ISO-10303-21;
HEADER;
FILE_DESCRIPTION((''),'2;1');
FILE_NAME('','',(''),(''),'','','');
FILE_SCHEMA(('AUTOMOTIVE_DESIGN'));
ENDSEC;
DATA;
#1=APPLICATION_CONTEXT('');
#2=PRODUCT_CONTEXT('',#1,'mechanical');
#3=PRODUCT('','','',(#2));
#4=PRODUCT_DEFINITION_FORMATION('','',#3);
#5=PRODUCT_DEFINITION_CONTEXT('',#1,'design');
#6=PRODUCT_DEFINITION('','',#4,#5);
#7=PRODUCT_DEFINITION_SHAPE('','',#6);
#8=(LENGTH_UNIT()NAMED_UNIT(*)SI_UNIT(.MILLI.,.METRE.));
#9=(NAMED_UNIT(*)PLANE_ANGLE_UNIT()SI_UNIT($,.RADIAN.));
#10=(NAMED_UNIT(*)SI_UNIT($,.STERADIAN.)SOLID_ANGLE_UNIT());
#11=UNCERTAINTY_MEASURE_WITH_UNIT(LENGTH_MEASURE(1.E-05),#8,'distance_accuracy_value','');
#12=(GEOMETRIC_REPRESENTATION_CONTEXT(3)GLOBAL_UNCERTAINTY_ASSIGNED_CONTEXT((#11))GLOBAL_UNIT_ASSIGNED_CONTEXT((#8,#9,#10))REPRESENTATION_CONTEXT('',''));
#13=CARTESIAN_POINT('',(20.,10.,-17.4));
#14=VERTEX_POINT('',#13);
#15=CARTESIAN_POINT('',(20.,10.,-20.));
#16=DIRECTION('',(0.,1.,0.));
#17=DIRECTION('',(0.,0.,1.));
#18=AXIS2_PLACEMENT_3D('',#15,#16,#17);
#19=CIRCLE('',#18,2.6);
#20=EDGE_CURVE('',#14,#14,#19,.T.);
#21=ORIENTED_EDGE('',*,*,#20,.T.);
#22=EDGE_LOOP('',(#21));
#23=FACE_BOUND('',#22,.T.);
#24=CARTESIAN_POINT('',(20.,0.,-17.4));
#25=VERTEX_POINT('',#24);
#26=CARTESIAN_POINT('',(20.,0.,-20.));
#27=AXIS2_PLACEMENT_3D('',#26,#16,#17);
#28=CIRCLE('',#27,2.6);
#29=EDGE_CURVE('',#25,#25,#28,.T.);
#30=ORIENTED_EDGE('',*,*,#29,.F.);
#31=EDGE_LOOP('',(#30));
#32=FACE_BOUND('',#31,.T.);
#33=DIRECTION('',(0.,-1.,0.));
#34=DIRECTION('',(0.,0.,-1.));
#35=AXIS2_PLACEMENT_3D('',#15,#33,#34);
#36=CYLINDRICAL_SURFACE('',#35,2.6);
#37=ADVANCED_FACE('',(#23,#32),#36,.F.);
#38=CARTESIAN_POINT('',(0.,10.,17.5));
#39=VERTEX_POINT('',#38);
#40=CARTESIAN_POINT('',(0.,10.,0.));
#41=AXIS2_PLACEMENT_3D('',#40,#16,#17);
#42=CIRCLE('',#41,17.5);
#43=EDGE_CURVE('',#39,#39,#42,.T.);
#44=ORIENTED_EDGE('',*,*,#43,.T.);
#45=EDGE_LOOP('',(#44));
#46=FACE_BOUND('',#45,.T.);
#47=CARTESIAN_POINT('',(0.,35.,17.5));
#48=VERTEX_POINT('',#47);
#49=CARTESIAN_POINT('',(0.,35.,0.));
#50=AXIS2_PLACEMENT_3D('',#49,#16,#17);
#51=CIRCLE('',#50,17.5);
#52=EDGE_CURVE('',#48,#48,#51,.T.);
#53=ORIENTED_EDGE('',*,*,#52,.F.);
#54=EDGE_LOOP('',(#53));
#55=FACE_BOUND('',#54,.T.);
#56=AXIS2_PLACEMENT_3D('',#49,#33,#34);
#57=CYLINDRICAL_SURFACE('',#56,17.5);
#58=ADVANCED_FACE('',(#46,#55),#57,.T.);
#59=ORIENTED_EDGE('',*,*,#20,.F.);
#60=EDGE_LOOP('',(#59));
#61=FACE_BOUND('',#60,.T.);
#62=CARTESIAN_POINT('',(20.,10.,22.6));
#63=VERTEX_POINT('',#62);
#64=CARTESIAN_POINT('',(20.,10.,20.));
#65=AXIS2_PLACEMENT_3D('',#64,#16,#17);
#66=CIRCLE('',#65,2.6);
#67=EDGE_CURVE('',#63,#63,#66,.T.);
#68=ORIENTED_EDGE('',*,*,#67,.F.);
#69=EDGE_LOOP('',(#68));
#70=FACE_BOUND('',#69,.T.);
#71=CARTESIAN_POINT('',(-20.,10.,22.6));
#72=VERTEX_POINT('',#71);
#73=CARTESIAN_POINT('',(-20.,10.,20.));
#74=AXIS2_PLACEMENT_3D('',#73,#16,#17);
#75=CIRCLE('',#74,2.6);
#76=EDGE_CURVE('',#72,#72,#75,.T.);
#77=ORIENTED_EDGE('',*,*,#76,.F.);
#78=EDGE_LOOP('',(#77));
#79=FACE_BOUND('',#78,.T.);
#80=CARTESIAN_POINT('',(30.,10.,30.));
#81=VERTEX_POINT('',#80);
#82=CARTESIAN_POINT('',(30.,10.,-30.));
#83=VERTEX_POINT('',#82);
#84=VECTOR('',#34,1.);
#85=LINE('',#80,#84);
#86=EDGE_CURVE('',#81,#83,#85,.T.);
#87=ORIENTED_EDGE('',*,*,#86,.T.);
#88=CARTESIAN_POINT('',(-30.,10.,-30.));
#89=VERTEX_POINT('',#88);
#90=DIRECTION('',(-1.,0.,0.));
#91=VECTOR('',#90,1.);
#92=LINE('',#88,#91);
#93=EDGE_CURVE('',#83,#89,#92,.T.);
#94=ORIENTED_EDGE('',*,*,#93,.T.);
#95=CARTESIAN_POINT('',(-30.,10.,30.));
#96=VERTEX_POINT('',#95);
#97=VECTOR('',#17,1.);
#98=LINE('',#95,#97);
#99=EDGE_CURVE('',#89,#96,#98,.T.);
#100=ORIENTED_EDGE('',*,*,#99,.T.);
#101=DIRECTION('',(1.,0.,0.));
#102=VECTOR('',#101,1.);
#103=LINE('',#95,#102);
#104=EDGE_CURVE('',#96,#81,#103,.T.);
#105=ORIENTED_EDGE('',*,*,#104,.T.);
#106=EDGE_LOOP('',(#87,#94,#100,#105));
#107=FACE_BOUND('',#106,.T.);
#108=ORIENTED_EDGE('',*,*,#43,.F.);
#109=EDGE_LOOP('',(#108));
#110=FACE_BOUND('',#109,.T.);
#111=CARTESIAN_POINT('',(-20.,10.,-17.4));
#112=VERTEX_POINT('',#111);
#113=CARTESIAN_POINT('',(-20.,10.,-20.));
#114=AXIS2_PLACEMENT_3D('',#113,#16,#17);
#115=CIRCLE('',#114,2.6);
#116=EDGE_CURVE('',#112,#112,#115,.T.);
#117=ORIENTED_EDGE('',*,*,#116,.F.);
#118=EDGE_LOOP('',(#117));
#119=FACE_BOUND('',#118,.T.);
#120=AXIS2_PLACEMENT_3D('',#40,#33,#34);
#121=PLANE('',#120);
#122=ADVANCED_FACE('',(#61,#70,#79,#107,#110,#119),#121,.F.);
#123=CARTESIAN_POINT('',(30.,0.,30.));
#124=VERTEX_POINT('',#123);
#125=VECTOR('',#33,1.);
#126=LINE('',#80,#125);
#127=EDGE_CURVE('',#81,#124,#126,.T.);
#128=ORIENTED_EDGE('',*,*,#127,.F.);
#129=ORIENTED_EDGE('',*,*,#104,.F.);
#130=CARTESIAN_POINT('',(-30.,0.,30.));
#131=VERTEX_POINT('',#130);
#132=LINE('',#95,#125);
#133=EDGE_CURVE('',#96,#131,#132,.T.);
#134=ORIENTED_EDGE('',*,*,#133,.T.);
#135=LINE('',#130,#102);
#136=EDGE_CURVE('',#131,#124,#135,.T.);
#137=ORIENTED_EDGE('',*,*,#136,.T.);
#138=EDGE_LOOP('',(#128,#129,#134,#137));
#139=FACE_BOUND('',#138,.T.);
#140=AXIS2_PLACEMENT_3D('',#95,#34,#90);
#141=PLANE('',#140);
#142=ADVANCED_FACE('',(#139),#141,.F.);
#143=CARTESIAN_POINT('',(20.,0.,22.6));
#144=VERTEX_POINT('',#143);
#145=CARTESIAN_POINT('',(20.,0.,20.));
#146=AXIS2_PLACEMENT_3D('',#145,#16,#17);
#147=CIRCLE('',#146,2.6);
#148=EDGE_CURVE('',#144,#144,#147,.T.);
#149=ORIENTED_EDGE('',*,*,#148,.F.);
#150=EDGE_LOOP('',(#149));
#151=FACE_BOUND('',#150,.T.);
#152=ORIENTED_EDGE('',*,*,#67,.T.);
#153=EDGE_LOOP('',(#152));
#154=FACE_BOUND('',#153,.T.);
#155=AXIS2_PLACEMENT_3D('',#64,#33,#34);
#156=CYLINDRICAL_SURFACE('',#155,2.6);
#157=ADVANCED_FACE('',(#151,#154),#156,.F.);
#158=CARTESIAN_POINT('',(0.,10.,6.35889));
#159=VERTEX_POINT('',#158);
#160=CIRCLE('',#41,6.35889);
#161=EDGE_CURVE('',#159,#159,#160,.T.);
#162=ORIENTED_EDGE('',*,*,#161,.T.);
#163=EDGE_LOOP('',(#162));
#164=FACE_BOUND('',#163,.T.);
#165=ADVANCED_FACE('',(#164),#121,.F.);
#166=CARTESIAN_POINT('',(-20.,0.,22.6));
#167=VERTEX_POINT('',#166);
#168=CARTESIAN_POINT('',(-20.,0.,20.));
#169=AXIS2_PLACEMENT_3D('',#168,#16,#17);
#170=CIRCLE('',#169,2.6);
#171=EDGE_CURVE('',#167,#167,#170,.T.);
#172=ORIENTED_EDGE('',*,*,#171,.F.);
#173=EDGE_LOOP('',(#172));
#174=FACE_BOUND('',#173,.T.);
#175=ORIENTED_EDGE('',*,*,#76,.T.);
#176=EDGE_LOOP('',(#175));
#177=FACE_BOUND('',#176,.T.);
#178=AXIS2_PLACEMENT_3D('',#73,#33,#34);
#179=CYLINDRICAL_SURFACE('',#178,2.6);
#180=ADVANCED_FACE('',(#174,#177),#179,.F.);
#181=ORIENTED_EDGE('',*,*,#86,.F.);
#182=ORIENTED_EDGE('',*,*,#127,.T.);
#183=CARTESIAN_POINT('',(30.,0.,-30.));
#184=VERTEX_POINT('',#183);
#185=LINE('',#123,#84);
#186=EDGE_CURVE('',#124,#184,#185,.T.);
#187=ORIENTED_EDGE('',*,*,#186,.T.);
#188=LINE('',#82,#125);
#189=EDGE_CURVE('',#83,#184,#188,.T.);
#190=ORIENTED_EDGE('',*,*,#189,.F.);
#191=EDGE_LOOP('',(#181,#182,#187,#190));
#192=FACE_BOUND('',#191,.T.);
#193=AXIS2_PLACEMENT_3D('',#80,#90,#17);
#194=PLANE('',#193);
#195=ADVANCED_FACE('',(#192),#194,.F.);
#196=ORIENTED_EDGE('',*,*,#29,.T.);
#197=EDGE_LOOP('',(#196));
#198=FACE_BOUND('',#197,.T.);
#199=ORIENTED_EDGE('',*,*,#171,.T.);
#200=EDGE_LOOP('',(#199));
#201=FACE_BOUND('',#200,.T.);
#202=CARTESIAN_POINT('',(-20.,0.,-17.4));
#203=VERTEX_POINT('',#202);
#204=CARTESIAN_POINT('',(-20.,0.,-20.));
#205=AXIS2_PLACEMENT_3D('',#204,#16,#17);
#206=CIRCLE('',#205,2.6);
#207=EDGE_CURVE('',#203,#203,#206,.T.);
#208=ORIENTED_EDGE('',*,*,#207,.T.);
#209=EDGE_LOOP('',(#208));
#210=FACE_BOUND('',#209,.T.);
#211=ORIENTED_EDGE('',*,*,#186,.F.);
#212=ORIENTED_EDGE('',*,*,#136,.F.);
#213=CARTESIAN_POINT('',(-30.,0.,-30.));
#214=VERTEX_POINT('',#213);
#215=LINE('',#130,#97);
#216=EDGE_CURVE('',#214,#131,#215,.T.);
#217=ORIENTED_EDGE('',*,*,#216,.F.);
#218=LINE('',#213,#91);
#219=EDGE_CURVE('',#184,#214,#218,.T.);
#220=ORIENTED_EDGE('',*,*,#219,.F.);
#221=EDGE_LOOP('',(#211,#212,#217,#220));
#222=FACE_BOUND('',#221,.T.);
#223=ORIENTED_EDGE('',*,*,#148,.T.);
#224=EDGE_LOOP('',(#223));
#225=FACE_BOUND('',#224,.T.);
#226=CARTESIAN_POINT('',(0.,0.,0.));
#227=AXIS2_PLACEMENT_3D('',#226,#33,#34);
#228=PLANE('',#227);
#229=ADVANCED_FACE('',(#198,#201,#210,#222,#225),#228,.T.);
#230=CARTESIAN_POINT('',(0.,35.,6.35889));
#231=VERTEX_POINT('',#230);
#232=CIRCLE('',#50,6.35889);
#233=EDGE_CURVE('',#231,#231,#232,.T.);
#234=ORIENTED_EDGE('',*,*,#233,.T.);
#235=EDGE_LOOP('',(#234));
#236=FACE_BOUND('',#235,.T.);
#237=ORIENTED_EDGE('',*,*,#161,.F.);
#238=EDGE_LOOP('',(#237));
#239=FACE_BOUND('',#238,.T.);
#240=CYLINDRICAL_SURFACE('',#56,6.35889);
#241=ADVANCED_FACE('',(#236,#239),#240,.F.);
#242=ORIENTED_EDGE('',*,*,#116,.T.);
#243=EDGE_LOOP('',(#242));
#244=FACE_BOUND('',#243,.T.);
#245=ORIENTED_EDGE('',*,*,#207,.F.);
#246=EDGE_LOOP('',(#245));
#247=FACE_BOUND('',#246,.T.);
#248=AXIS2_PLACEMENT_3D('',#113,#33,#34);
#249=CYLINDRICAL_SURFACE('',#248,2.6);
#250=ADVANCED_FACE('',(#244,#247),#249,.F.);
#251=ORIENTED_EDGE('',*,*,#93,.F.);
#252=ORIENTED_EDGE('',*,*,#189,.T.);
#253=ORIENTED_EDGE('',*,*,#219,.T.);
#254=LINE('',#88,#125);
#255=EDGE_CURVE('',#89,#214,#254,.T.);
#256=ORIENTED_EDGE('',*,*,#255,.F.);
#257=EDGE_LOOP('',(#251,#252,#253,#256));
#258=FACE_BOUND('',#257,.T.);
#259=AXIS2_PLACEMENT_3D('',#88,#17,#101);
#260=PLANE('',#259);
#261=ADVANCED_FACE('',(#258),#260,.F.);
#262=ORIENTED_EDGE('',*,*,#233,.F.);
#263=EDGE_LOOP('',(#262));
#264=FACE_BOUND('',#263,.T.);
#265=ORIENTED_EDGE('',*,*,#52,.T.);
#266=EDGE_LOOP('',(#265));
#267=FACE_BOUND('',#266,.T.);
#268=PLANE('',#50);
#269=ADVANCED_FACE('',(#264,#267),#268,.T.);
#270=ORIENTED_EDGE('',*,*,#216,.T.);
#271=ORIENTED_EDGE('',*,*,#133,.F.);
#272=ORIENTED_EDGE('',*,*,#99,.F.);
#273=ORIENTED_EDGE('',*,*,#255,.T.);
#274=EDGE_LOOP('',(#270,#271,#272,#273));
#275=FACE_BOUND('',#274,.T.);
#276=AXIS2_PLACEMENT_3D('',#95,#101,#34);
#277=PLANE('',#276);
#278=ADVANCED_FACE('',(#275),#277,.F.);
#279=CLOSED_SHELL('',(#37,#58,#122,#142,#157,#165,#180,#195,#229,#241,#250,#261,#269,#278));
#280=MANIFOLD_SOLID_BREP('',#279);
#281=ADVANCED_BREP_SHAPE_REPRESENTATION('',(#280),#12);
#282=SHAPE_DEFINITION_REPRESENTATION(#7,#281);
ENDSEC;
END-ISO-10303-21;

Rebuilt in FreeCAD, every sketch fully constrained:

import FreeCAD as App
import Part
import Sketcher
from FreeCAD import Vector
Q = App.Units.Quantity

doc = App.newDocument("Part")
params = doc.addObject("Spreadsheet::Sheet", "Params")
for row, (alias, value) in enumerate([
    ("sketch1_diameter", "5.2 mm"),
    ("sketch1_width", "60 mm"),
    ("pad1_length", "10 mm"),
    ("sketch2_diameter", "35 mm"),
    ("pad2_length", "25 mm"),
], start=1):
    params.set(f"A{row}", alias)
    params.set(f"B{row}", "=" + value)
    params.setAlias(f"B{row}", alias)

body = doc.addObject("PartDesign::Body", "Body")

sketch1 = doc.addObject("Sketcher::SketchObject", "Sketch")
body.addObject(sketch1)
sketch1.AttachmentSupport = (doc.XZ_Plane, [""])
sketch1.MapMode = "FlatFace"
sketch1.addGeometry([
    Part.LineSegment(Vector(-30, -30, 0), Vector(-30, 30, 0)),
    Part.LineSegment(Vector(-30, 30, 0), Vector(30, 30, 0)),
    Part.LineSegment(Vector(30, 30, 0), Vector(30, -30, 0)),
    Part.LineSegment(Vector(30, -30, 0), Vector(-30, -30, 0)),
    Part.Circle(Vector(-20, 20, 0), Vector(0, 0, 1), 2.6),
    Part.Circle(Vector(20, 20, 0), Vector(0, 0, 1), 2.6),
    Part.Circle(Vector(-20, -20, 0), Vector(0, 0, 1), 2.6),
    Part.Circle(Vector(20, -20, 0), Vector(0, 0, 1), 2.6),
], False)
sketch1.addConstraint([
    Sketcher.Constraint("Coincident", 0, 2, 1, 1),
    Sketcher.Constraint("Coincident", 1, 2, 2, 1),
    Sketcher.Constraint("Coincident", 2, 2, 3, 1),
    Sketcher.Constraint("Coincident", 3, 2, 0, 1),
    Sketcher.Constraint("Vertical", 0),
    Sketcher.Constraint("Horizontal", 1),
    Sketcher.Constraint("Vertical", 2),
    Sketcher.Constraint("Horizontal", 3),
    Sketcher.Constraint("Equal", 4, 5),
    Sketcher.Constraint("Equal", 5, 6),
    Sketcher.Constraint("Equal", 6, 7),
    Sketcher.Constraint("Symmetric", 5, 3, 6, 3, -1, 1),
    Sketcher.Constraint("Symmetric", 4, 3, 7, 3, -1, 1),
    Sketcher.Constraint("Symmetric", 0, 2, 2, 2, -1, 1),
    Sketcher.Constraint("Symmetric", 4, 3, 5, 3, -2),
    Sketcher.Constraint("Equal", 3, 0),
    Sketcher.Constraint("Diameter", 4, Q("5.2 mm")),
    Sketcher.Constraint("DistanceX", 1, 1, 1, 2, Q("60 mm")),
    Sketcher.Constraint("DistanceX", 4, 3, -1, 1, Q("20 mm")),
    Sketcher.Constraint("DistanceY", -1, 1, 4, 3, Q("20 mm")),
])
sketch1.setExpression("Constraints[16]", "Params.sketch1_diameter")
sketch1.setExpression("Constraints[17]", "Params.sketch1_width")
pad1 = doc.addObject("PartDesign::Pad", "Pad")
body.addObject(pad1)
pad1.Profile = sketch1
pad1.setExpression("Length", "Params.pad1_length")
pad1.Reversed = True

sketch2 = doc.addObject("Sketcher::SketchObject", "Sketch001")
body.addObject(sketch2)
sketch2.AttachmentSupport = (doc.XZ_Plane, [""])
sketch2.MapMode = "FlatFace"
sketch2.AttachmentOffset = App.Placement(Vector(0, 0, -10), App.Rotation())
sketch2.addGeometry([
    Part.Circle(Vector(0, 0, 0), Vector(0, 0, 1), 18),
    Part.Circle(Vector(0, 0, 0), Vector(0, 0, 1), 6),
], False)
sketch2.addConstraint([
    Sketcher.Constraint("Coincident", 0, 3, -1, 1),
    Sketcher.Constraint("Coincident", 1, 3, -1, 1),
    Sketcher.Constraint("Diameter", 0, Q("35 mm")),
    Sketcher.Constraint("Diameter", 1, Q("12.71778 mm")),
])
sketch2.setExpression("Constraints[2]", "Params.sketch2_diameter")
pad2 = doc.addObject("PartDesign::Pad", "Pad001")
body.addObject(pad2)
pad2.Profile = sketch2
pad2.setExpression("Length", "Params.pad2_length")
pad2.Reversed = True

doc.recompute()
